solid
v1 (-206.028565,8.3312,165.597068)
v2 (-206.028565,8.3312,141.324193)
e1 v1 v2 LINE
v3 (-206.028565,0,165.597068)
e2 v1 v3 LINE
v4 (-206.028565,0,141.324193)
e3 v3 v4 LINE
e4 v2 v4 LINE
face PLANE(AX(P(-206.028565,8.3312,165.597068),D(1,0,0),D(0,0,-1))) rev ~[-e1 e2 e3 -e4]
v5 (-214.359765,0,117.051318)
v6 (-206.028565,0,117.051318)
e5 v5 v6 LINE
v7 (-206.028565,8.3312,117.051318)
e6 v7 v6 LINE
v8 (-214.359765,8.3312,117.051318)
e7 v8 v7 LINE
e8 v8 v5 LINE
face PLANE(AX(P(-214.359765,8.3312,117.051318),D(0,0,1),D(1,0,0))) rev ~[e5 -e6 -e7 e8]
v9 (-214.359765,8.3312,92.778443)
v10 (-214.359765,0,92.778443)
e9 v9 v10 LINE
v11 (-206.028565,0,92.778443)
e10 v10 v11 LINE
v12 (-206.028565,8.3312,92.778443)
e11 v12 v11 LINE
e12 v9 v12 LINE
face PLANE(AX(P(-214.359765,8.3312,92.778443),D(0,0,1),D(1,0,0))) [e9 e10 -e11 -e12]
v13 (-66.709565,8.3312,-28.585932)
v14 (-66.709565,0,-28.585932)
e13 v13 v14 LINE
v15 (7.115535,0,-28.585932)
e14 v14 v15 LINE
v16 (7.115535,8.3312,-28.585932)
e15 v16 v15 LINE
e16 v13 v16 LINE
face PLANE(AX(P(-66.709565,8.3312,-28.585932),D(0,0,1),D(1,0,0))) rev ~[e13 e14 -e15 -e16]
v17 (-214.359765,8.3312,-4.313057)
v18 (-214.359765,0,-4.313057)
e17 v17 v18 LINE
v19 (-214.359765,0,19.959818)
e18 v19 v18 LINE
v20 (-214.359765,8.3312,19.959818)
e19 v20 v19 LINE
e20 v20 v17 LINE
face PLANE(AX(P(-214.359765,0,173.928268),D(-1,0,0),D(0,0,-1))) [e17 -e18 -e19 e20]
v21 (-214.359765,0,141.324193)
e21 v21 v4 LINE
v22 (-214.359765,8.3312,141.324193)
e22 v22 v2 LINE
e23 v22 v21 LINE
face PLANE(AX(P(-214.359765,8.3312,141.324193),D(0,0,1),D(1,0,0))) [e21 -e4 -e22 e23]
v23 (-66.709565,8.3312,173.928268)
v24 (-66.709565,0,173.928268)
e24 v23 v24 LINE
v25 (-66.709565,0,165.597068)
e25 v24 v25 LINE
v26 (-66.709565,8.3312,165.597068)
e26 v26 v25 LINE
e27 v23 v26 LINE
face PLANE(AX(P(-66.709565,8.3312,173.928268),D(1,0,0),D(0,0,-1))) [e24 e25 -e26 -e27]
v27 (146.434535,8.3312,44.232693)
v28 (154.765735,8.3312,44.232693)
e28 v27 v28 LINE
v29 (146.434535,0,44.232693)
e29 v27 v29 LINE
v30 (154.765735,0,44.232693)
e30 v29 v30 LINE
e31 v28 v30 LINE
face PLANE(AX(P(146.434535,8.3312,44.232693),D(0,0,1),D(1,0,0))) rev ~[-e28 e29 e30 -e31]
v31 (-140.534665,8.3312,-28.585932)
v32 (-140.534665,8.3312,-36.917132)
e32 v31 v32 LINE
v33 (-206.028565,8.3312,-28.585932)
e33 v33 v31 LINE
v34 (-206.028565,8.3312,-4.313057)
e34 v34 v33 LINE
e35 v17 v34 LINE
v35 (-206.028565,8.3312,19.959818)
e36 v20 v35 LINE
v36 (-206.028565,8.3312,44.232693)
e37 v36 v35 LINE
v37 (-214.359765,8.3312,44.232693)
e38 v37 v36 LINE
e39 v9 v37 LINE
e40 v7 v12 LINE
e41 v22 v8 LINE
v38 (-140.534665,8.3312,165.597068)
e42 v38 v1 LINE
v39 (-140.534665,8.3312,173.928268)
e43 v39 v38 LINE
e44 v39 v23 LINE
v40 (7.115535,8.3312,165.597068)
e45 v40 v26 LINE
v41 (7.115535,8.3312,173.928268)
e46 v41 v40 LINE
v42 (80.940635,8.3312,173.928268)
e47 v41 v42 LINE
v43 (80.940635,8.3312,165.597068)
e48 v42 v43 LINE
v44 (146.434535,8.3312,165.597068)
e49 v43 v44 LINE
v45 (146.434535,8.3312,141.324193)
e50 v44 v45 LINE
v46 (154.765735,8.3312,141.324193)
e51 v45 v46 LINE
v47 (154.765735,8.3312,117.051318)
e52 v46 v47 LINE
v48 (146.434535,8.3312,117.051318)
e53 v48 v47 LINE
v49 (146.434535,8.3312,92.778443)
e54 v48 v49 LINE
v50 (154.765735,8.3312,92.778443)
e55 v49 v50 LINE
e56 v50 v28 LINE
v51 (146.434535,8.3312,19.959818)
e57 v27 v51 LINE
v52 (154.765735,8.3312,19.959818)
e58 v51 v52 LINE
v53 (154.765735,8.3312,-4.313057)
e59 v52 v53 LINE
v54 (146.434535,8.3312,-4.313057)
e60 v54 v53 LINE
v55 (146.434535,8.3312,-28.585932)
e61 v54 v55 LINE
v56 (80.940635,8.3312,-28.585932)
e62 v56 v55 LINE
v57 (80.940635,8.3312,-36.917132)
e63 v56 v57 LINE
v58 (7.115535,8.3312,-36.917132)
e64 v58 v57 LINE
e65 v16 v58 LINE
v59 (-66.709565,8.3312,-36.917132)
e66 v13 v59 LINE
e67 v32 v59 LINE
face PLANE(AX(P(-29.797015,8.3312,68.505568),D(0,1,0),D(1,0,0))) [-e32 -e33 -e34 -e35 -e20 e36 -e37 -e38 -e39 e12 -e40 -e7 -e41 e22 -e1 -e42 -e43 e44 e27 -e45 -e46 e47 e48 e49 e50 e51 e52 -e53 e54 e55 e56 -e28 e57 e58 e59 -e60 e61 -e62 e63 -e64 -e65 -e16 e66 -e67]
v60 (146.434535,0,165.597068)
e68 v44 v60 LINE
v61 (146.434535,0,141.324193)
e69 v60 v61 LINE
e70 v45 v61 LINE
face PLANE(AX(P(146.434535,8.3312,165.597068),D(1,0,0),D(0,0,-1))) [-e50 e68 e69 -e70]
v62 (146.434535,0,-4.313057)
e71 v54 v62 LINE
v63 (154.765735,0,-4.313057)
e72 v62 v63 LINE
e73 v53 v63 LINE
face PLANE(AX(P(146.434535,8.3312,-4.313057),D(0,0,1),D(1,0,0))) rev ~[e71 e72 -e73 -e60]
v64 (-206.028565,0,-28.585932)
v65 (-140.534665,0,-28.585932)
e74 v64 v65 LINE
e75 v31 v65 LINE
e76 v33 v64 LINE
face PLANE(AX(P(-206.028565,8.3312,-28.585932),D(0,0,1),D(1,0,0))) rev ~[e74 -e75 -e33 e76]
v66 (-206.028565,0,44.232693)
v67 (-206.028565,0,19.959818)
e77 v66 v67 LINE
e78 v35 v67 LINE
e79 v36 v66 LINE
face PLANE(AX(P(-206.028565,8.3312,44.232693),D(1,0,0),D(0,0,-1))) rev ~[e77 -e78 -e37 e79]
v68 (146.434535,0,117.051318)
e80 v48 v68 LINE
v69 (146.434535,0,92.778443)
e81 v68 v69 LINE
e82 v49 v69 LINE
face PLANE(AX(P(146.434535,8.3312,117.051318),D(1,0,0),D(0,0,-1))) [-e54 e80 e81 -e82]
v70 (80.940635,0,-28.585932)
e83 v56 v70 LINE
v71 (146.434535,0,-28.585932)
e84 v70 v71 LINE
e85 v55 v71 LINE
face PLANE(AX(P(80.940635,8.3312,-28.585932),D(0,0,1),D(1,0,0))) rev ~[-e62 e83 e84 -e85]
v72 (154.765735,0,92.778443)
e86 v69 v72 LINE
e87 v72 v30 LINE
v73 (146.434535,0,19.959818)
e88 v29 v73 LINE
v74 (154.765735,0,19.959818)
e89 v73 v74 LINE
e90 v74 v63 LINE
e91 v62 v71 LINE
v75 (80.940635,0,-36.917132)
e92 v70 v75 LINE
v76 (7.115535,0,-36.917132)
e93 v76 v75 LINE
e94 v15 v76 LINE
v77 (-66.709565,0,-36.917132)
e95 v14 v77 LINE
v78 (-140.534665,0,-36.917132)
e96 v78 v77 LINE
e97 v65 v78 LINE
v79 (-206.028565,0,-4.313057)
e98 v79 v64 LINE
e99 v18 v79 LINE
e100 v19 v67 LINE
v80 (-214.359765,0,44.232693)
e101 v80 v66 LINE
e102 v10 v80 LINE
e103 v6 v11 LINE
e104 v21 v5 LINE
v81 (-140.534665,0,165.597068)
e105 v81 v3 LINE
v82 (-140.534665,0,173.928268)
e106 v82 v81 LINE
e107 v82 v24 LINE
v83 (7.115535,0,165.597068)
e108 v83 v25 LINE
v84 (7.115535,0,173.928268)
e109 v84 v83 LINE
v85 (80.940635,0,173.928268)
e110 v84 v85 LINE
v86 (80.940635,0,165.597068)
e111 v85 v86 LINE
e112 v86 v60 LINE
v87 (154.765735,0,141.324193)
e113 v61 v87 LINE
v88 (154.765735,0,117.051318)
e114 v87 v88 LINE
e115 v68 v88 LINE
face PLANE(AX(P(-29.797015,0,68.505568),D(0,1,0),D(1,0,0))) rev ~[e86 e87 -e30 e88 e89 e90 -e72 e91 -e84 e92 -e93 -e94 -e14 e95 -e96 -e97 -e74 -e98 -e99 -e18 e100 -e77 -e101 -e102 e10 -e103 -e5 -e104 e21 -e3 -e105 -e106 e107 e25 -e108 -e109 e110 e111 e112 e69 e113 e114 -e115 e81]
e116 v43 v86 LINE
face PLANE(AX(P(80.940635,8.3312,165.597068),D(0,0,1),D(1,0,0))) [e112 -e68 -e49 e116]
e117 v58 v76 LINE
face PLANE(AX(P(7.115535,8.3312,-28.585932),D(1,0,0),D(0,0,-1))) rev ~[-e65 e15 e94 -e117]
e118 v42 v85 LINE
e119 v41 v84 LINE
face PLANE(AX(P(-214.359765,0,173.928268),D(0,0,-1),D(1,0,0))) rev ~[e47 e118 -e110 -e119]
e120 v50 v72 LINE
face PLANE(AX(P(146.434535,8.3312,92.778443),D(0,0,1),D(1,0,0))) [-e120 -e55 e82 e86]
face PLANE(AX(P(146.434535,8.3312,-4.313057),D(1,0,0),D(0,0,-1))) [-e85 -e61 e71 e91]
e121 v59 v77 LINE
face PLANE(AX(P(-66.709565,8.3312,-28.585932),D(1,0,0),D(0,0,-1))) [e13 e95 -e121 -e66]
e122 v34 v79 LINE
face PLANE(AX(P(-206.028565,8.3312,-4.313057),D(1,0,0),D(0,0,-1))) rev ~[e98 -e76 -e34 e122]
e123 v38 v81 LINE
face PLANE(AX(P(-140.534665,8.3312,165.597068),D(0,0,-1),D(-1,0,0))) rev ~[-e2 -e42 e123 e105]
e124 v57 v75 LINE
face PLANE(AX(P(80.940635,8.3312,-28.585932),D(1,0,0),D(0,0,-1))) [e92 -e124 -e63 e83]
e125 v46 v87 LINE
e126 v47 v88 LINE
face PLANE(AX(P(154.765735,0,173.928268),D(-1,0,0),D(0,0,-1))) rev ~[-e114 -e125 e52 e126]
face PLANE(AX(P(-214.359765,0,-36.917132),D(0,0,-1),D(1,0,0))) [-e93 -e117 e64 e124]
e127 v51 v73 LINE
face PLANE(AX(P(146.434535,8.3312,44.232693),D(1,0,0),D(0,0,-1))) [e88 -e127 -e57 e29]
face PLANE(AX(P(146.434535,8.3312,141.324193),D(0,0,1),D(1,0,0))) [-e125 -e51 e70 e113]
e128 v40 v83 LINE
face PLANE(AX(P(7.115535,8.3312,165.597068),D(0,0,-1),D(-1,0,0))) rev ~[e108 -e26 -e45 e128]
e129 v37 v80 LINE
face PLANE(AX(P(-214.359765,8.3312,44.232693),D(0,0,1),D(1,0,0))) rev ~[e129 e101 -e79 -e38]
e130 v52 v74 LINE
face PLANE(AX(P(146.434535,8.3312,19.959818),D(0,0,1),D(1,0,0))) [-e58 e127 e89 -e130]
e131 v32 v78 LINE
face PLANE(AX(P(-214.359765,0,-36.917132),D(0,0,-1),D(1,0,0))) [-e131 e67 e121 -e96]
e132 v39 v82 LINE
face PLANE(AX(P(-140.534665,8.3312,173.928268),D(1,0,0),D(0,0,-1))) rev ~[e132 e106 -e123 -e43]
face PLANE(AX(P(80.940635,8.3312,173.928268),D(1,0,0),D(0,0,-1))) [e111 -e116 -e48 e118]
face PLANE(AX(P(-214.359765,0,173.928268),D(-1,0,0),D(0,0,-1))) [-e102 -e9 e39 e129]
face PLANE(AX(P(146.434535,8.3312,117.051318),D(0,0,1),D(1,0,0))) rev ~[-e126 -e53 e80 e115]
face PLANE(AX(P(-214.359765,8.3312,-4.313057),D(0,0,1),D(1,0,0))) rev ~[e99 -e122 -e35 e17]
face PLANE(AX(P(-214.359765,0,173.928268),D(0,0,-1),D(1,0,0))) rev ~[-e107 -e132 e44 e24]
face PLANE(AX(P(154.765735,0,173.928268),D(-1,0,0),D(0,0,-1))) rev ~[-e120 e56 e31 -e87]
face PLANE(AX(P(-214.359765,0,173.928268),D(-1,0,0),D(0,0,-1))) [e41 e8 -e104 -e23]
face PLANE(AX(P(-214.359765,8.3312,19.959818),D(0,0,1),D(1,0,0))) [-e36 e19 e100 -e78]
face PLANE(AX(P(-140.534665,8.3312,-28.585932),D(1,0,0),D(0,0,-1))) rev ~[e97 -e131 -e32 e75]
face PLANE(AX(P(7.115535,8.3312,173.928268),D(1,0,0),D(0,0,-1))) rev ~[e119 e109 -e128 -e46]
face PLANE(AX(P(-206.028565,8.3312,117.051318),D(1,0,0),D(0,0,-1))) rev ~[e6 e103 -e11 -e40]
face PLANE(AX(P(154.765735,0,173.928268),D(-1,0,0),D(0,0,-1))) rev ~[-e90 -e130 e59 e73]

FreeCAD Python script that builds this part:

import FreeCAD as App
import Part
import Sketcher
from FreeCAD import Vector
Q = App.Units.Quantity


def add_polygon(sketch, points):
    """Adds a closed chain of lines whose ends are joined by coincident constraints."""
    first, n = sketch.GeometryCount, len(points)
    for a, b in zip(points, points[1:] + points[:1]):
        sketch.addGeometry(Part.LineSegment(App.Vector(*a, 0), App.Vector(*b, 0)), False)
    for i in range(n):
        sketch.addConstraint(Sketcher.Constraint("Coincident", first + i, 2, first + (i + 1) % n, 1))

doc = App.newDocument("Part")
body = doc.addObject("PartDesign::Body", "Body")

# Sketch on XZ plane
sketch1 = body.newObject("Sketcher::SketchObject", "Sketch")
sketch1.AttachmentSupport = (doc.getObject("XZ_Plane"), [""])
sketch1.MapMode = "FlatFace"
add_polygon(sketch1, [(-214, -37), (-214, 174), (155, 174), (155, -37)])  # lines 0-3
sketch1.addConstraint([
    Sketcher.Constraint("Vertical", 0),
    Sketcher.Constraint("Horizontal", 1),
    Sketcher.Constraint("Vertical", 2),
    Sketcher.Constraint("Horizontal", 3),
    Sketcher.Constraint("DistanceY", 0, 1, 0, 2, Q("8.301 in")),
    Sketcher.Constraint("DistanceX", 1, 1, 1, 2, Q("14.5325 in")),
    Sketcher.Constraint("DistanceX", 0, 2, -1, 1, 214.359765),
    Sketcher.Constraint("DistanceY", -1, 1, 0, 2, 173.928268),
])
pad1 = body.newObject("PartDesign::Pad", "Pad")
pad1.Profile = sketch1
pad1.Length = Q("0.328 in")
pad1.Reversed = True

# Sketch on XZ plane
sketch2 = body.newObject("Sketcher::SketchObject", "Sketch001")
sketch2.AttachmentSupport = (doc.getObject("XZ_Plane"), [""])
sketch2.MapMode = "FlatFace"
sketch2.AttachmentOffset = App.Placement(Vector(0, 0, -0.328 * 25.4), App.Rotation())
add_polygon(sketch2, [(-214, 93), (-214, 117), (-206, 117), (-206, 93)])  # lines 0-3
add_polygon(sketch2, [(-214, 141), (-214, 174), (-141, 174), (-141, 166), (-206, 166), (-206, 141)])  # lines 4-9
add_polygon(sketch2, [(7, 174), (7, 166), (-67, 166), (-67, 174)])  # lines 10-13
add_polygon(sketch2, [(81, 166), (81, 174), (155, 174), (155, 141), (146, 141), (146, 166)])  # lines 14-19
add_polygon(sketch2, [(146, 93), (146, 117), (155, 117), (155, 93)])  # lines 20-23
add_polygon(sketch2, [(146, 20), (146, 44), (155, 44), (155, 20)])  # lines 24-27
add_polygon(sketch2, [(146, -29), (146, -4), (155, -4), (155, -37), (81, -37), (81, -29)])  # lines 28-33
add_polygon(sketch2, [(-67, -37), (-67, -29), (7, -29), (7, -37)])  # lines 34-37
add_polygon(sketch2, [(-214, 20), (-214, 44), (-206, 44), (-206, 20)])  # lines 38-41
add_polygon(sketch2, [(-214, -4), (-206, -4), (-206, -29), (-141, -29), (-141, -37), (-214, -37)])  # lines 42-47
sketch2.addConstraint([
    Sketcher.Constraint("Vertical", 0),
    Sketcher.Constraint("Horizontal", 1),
    Sketcher.Constraint("Vertical", 2),
    Sketcher.Constraint("Horizontal", 3),
    Sketcher.Constraint("Vertical", 4),
    Sketcher.Constraint("Horizontal", 5),
    Sketcher.Constraint("Vertical", 6),
    Sketcher.Constraint("Horizontal", 7),
    Sketcher.Constraint("Vertical", 8),
    Sketcher.Constraint("Horizontal", 9),
    Sketcher.Constraint("Vertical", 10),
    Sketcher.Constraint("Horizontal", 11),
    Sketcher.Constraint("Vertical", 12),
    Sketcher.Constraint("Horizontal", 13),
    Sketcher.Constraint("Vertical", 14),
    Sketcher.Constraint("Horizontal", 15),
    Sketcher.Constraint("Vertical", 16),
    Sketcher.Constraint("Horizontal", 17),
    Sketcher.Constraint("Vertical", 18),
    Sketcher.Constraint("Horizontal", 19),
    Sketcher.Constraint("Vertical", 20),
    Sketcher.Constraint("Horizontal", 21),
    Sketcher.Constraint("Vertical", 22),
    Sketcher.Constraint("Horizontal", 23),
    Sketcher.Constraint("Vertical", 24),
    Sketcher.Constraint("Horizontal", 25),
    Sketcher.Constraint("Vertical", 26),
    Sketcher.Constraint("Horizontal", 27),
    Sketcher.Constraint("Vertical", 28),
    Sketcher.Constraint("Horizontal", 29),
    Sketcher.Constraint("Vertical", 30),
    Sketcher.Constraint("Horizontal", 31),
    Sketcher.Constraint("Vertical", 32),
    Sketcher.Constraint("Horizontal", 33),
    Sketcher.Constraint("Vertical", 34),
    Sketcher.Constraint("Horizontal", 35),
    Sketcher.Constraint("Vertical", 36),
    Sketcher.Constraint("Horizontal", 37),
    Sketcher.Constraint("Vertical", 38),
    Sketcher.Constraint("Horizontal", 39),
    Sketcher.Constraint("Vertical", 40),
    Sketcher.Constraint("Horizontal", 41),
    Sketcher.Constraint("Horizontal", 42),
    Sketcher.Constraint("Vertical", 43),
    Sketcher.Constraint("Horizontal", 44),
    Sketcher.Constraint("Vertical", 45),
    Sketcher.Constraint("Horizontal", 46),
    Sketcher.Constraint("Vertical", 47),
    Sketcher.Constraint("Horizontal", 7, 2, 10, 2),
    Sketcher.Constraint("Horizontal", 5, 2, 12, 2),
    Sketcher.Constraint("Horizontal", 13, 2, 14, 2),
    Sketcher.Constraint("Horizontal", 9, 2, 16, 2),
    Sketcher.Constraint("Horizontal", 11, 2, 18, 2),
    Sketcher.Constraint("Horizontal", 1, 2, 20, 2),
    Sketcher.Constraint("Horizontal", 3, 2, 22, 2),
    Sketcher.Constraint("Horizontal", 33, 2, 34, 2),
    Sketcher.Constraint("Horizontal", 31, 2, 36, 2),
    Sketcher.Constraint("Horizontal", 25, 2, 38, 2),
    Sketcher.Constraint("Horizontal", 27, 2, 40, 2),
    Sketcher.Constraint("Horizontal", 29, 2, 42, 2),
    Sketcher.Constraint("Horizontal", 35, 2, 43, 2),
    Sketcher.Constraint("Horizontal", 37, 2, 45, 2),
    Sketcher.Constraint("Vertical", 3, 2, 4, 2),
    Sketcher.Constraint("Vertical", 2, 2, 7, 2),
    Sketcher.Constraint("Vertical", 18, 2, 20, 2),
    Sketcher.Constraint("Vertical", 16, 2, 21, 2),
    Sketcher.Constraint("Vertical", 23, 2, 24, 2),
    Sketcher.Constraint("Vertical", 22, 2, 25, 2),
    Sketcher.Constraint("Vertical", 27, 2, 28, 2),
    Sketcher.Constraint("Vertical", 26, 2, 29, 2),
    Sketcher.Constraint("Vertical", 19, 2, 31, 2),
    Sketcher.Constraint("Vertical", 12, 2, 34, 2),
    Sketcher.Constraint("Vertical", 13, 2, 35, 2),
    Sketcher.Constraint("Vertical", 9, 2, 38, 2),
    Sketcher.Constraint("Vertical", 8, 2, 39, 2),
    Sketcher.Constraint("Vertical", 40, 2, 42, 2),
    Sketcher.Constraint("Vertical", 6, 2, 44, 2),
    Sketcher.Constraint("Vertical", 41, 2, 46, 2),
    Sketcher.Constraint("Equal", 5, 11),
    Sketcher.Constraint("Equal", 13, 15),
    Sketcher.Constraint("Equal", 9, 17),
    Sketcher.Constraint("Equal", 42, 6),
    Sketcher.Constraint("Equal", 2, 8),
    Sketcher.Constraint("Equal", 22, 24),
    Sketcher.Constraint("Equal", 26, 28),
    Sketcher.Constraint("Equal", 16, 30),
    Sketcher.Constraint("DistanceX", 1, 1, 1, 2, Q("0.328 in")),
    Sketcher.Constraint("DistanceX", 5, 1, 5, 2, Q("2.9065 in")),
    Sketcher.Constraint("DistanceX", 6, 2, 10, 2, Q("5.813 in")),
    Sketcher.Constraint("DistanceX", 12, 2, 14, 2, Q("5.813 in")),
    Sketcher.Constraint("DistanceY", 34, 2, 11, 2, Q("7.645 in")),
    Sketcher.Constraint("DistanceY", 24, 2, 17, 2, Q("3.8225 in")),
    Sketcher.Constraint("DistanceY", 26, 2, 21, 2, Q("3.8225 in")),
    Sketcher.Constraint("DistanceY", 28, 2, 23, 2, Q("3.8225 in")),
    Sketcher.Constraint("DistanceX", 0, 2, -1, 1, 214.359765),
    Sketcher.Constraint("DistanceY", -1, 1, 0, 2, 117.051318),
])
pocket1 = body.newObject("PartDesign::Pocket", "Pocket")
pocket1.Profile = sketch2
pocket1.Type = "ThroughAll"
pocket1.Reversed = True

doc.recompute()
